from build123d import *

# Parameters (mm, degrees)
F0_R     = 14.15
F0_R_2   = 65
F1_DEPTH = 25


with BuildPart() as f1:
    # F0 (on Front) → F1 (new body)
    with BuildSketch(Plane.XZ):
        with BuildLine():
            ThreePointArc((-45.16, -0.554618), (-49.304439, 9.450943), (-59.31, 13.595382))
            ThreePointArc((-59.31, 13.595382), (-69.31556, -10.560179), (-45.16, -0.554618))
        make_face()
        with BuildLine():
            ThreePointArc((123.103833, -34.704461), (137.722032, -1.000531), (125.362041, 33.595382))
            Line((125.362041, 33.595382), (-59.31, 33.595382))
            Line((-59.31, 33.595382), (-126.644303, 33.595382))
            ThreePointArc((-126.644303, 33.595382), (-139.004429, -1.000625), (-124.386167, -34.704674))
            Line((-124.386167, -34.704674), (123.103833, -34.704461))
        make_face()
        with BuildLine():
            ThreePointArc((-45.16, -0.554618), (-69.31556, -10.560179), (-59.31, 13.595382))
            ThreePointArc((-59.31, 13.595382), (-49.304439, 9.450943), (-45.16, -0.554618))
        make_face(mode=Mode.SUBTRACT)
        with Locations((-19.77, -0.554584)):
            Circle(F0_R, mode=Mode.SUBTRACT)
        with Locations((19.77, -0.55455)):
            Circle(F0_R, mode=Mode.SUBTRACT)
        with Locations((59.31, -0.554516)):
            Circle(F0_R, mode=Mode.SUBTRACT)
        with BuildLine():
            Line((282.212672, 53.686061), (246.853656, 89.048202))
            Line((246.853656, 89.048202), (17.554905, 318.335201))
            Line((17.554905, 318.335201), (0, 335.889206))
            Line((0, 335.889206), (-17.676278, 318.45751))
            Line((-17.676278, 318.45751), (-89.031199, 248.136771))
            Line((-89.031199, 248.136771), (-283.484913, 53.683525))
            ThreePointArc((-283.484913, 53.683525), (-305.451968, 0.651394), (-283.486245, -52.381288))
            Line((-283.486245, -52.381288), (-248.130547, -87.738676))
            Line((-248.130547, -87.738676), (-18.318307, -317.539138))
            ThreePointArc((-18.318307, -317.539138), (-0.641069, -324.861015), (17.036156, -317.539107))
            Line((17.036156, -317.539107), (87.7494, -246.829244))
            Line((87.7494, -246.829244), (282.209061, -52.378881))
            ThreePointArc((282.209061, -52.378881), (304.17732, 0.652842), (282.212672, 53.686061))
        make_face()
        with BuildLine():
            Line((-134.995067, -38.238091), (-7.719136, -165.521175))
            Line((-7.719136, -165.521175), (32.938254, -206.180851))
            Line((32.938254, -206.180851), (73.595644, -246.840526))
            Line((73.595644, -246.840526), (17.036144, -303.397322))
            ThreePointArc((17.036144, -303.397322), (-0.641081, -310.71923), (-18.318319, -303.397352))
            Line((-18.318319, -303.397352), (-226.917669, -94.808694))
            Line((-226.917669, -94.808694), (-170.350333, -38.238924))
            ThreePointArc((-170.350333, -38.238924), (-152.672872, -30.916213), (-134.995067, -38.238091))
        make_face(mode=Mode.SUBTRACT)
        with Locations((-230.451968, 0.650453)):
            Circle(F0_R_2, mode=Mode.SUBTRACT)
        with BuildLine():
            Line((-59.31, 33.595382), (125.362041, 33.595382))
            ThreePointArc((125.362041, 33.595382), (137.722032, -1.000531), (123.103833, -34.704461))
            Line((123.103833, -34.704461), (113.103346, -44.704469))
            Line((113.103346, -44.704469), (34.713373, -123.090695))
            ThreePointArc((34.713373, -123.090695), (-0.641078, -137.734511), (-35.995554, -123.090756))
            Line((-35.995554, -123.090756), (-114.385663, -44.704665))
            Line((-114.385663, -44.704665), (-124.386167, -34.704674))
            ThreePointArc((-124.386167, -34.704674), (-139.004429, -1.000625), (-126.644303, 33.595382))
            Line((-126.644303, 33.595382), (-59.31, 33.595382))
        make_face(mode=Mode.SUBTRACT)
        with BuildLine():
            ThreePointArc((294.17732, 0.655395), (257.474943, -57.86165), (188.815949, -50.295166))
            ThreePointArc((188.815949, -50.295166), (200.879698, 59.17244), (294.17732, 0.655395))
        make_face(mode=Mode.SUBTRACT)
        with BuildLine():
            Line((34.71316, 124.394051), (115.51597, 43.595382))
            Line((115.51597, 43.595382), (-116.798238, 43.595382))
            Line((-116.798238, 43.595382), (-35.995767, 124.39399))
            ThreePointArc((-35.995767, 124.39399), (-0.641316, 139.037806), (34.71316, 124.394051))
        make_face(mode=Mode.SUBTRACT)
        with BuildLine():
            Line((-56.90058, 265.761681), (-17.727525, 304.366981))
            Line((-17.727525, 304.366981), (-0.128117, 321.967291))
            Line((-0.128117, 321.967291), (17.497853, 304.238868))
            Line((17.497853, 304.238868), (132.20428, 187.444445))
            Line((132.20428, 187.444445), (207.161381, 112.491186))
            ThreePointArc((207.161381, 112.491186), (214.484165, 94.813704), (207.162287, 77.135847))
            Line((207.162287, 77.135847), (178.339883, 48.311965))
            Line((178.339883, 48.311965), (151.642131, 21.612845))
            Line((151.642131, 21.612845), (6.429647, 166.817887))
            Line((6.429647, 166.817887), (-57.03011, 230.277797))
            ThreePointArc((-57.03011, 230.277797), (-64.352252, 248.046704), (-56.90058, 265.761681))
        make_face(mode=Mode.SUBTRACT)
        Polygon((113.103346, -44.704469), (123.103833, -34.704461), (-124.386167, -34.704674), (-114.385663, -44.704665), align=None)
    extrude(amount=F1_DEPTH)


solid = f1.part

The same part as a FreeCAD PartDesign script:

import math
import FreeCAD as App
import Part
import Sketcher

doc = App.newDocument("Part")
body = doc.addObject("PartDesign::Body", "Body")

# Sketch on XZ plane
sketch1 = doc.addObject("Sketcher::SketchObject", "Sketch")
body.addObject(sketch1)
sketch1.AttachmentSupport = (doc.XZ_Plane, [""])
sketch1.MapMode = "FlatFace"
sketch1.addGeometry([
    Part.LineSegment(App.Vector(282.212672, 53.686061, 0), App.Vector(246.853656, 89.048202, 0)),  # 0
    Part.LineSegment(App.Vector(246.853656, 89.048202, 0), App.Vector(17.554905, 318.335201, 0)),  # 1
    Part.LineSegment(App.Vector(17.554905, 318.335201, 0), App.Vector(0, 335.889206, 0)),  # 2
    Part.LineSegment(App.Vector(0, 335.889206, 0), App.Vector(-17.676278, 318.45751, 0)),  # 3
    Part.LineSegment(App.Vector(-17.676278, 318.45751, 0), App.Vector(-89.031199, 248.136771, 0)),  # 4
    Part.LineSegment(App.Vector(-89.031199, 248.136771, 0), App.Vector(-283.484913, 53.683525, 0)),  # 5
    Part.ArcOfCircle(Part.Circle(App.Vector(-230.451967, 0.650452, 0), App.Vector(0, 0, 1), 75.000001), math.radians(134.999932), math.radians(224.998629)),  # 6
    Part.LineSegment(App.Vector(-283.486245, -52.381288, 0), App.Vector(-248.130547, -87.738676, 0)),  # 7
    Part.LineSegment(App.Vector(-248.130547, -87.738676, 0), App.Vector(-18.318307, -317.539138, 0)),  # 8
    Part.ArcOfCircle(Part.Circle(App.Vector(-0.641091, -299.861015, 0), App.Vector(0, 0, 1), 25), math.radians(-134.99853), math.radians(-45.001369)),  # 9
    Part.LineSegment(App.Vector(17.036156, -317.539107, 0), App.Vector(87.7494, -246.829244, 0)),  # 10
    Part.LineSegment(App.Vector(87.7494, -246.829244, 0), App.Vector(282.209061, -52.378881, 0)),  # 11
    Part.ArcOfCircle(Part.Circle(App.Vector(229.177319, 0.655396, 0), App.Vector(0, 0, 1), 75.000001), math.radians(-45.001369), math.radians(44.997468)),  # 12
    Part.ArcOfCircle(Part.Circle(App.Vector(-152.672283, -55.916212, 0), App.Vector(0, 0, 1), 24.999999), math.radians(45.001465), math.radians(135.001235)),  # 13
    Part.LineSegment(App.Vector(-134.995067, -38.238091, 0), App.Vector(-7.719136, -165.521175, 0)),  # 14
    Part.LineSegment(App.Vector(-7.719136, -165.521175, 0), App.Vector(32.938254, -206.180851, 0)),  # 15
    Part.LineSegment(App.Vector(32.938254, -206.180851, 0), App.Vector(73.595644, -246.840526, 0)),  # 16
    Part.LineSegment(App.Vector(73.595644, -246.840526, 0), App.Vector(17.036144, -303.397322, 0)),  # 17
    Part.ArcOfCircle(Part.Circle(App.Vector(-0.641103, -285.719231, 0), App.Vector(0, 0, 1), 24.999999), math.radians(-134.998535), math.radians(-45.001368)),  # 18
    Part.LineSegment(App.Vector(-18.318319, -303.397352, 0), App.Vector(-226.917669, -94.808694, 0)),  # 19
    Part.LineSegment(App.Vector(-226.917669, -94.808694, 0), App.Vector(-170.350333, -38.238924, 0)),  # 20
    Part.Circle(App.Vector(-230.451968, 0.650453, 0), App.Vector(0, 0, 1), 65),  # 21
    Part.LineSegment(App.Vector(-126.644303, 33.595382, 0), App.Vector(125.362041, 33.595382, 0)),  # 22
    Part.ArcOfCircle(Part.Circle(App.Vector(87.749338, 0.651723, 0), App.Vector(0, 0, 1), 50.000001), math.radians(-45.001369), math.radians(41.213991)),  # 23
    Part.LineSegment(App.Vector(123.103833, -34.704461, 0), App.Vector(-124.386167, -34.704674, 0)),  # 24
    Part.ArcOfCircle(Part.Circle(App.Vector(-89.031733, 0.651571, 0), App.Vector(0, 0, 1), 50.000001), math.radians(138.785778), math.radians(225.001468)),  # 25
    Part.LineSegment(App.Vector(-35.995554, -123.090756, 0), App.Vector(-114.385663, -44.704665, 0)),  # 26
    Part.LineSegment(App.Vector(-114.385663, -44.704665, 0), App.Vector(113.103346, -44.704469, 0)),  # 27
    Part.LineSegment(App.Vector(113.103346, -44.704469, 0), App.Vector(34.713373, -123.090695, 0)),  # 28
    Part.ArcOfCircle(Part.Circle(App.Vector(-0.641121, -87.734511, 0), App.Vector(0, 0, 1), 50), math.radians(-134.998532), math.radians(-45.001369)),  # 29
    Part.ArcOfCircle(Part.Circle(App.Vector(229.17732, 0.655395, 0), App.Vector(0, 0, 1), 65), math.radians(0), math.radians(231.614884)),  # 30
    Part.ArcOfCircle(Part.Circle(App.Vector(229.177321, 0.655394, 0), App.Vector(0, 0, 1), 64.999999), math.radians(-128.385117), math.radians(0)),  # 31
    Part.ArcOfCircle(Part.Circle(App.Vector(-0.641273, 89.037806, 0), App.Vector(0, 0, 1), 50), math.radians(45.001468), math.radians(134.998631)),  # 32
    Part.LineSegment(App.Vector(34.71316, 124.394051, 0), App.Vector(115.51597, 43.595382, 0)),  # 33
    Part.LineSegment(App.Vector(115.51597, 43.595382, 0), App.Vector(-116.798238, 43.595382, 0)),  # 34
    Part.LineSegment(App.Vector(-116.798238, 43.595382, 0), App.Vector(-35.995767, 124.39399, 0)),  # 35
    Part.ArcOfCircle(Part.Circle(App.Vector(-39.352418, 247.955445, 0), App.Vector(0, 0, 1), 25.000001), math.radians(134.58177), math.radians(224.999928)),  # 36
    Part.LineSegment(App.Vector(-56.90058, 265.761681, 0), App.Vector(-17.727525, 304.366981, 0)),  # 37
    Part.LineSegment(App.Vector(-17.727525, 304.366981, 0), App.Vector(-0.128117, 321.967291, 0)),  # 38
    Part.LineSegment(App.Vector(-0.128117, 321.967291, 0), App.Vector(17.497853, 304.238868, 0)),  # 39
    Part.LineSegment(App.Vector(17.497853, 304.238868, 0), App.Vector(132.20428, 187.444445, 0)),  # 40
    Part.LineSegment(App.Vector(132.20428, 187.444445, 0), App.Vector(207.161381, 112.491186, 0)),  # 41
    Part.ArcOfCircle(Part.Circle(App.Vector(189.484166, 94.813063, 0), App.Vector(0, 0, 1), 24.999999), math.radians(-44.998535), math.radians(45.001471)),  # 42
    Part.LineSegment(App.Vector(207.162287, 77.135847, 0), App.Vector(178.339883, 48.311965, 0)),  # 43
    Part.LineSegment(App.Vector(178.339883, 48.311965, 0), App.Vector(151.642131, 21.612845, 0)),  # 44
    Part.LineSegment(App.Vector(151.642131, 21.612845, 0), App.Vector(6.429647, 166.817887, 0)),  # 45
    Part.LineSegment(App.Vector(6.429647, 166.817887, 0), App.Vector(-57.03011, 230.277797, 0)),  # 46
], False)
sketch1.addConstraint([
    Sketcher.Constraint("Coincident", 0, 2, 1, 1),
    Sketcher.Constraint("Coincident", 1, 2, 2, 1),
    Sketcher.Constraint("Coincident", 2, 2, 3, 1),
    Sketcher.Constraint("Coincident", 3, 2, 4, 1),
    Sketcher.Constraint("Coincident", 4, 2, 5, 1),
    Sketcher.Constraint("Coincident", 5, 2, 6, 1),
    Sketcher.Constraint("Coincident", 6, 2, 7, 1),
    Sketcher.Constraint("Coincident", 7, 2, 8, 1),
    Sketcher.Constraint("Coincident", 8, 2, 9, 1),
    Sketcher.Constraint("Coincident", 9, 2, 10, 1),
    Sketcher.Constraint("Coincident", 10, 2, 11, 1),
    Sketcher.Constraint("Coincident", 11, 2, 12, 1),
    Sketcher.Constraint("Coincident", 12, 2, 0, 1),
    Sketcher.Constraint("Coincident", 13, 1, 14, 1),
    Sketcher.Constraint("Coincident", 14, 2, 15, 1),
    Sketcher.Constraint("Coincident", 15, 2, 16, 1),
    Sketcher.Constraint("Coincident", 16, 2, 17, 1),
    Sketcher.Constraint("Coincident", 17, 2, 18, 2),
    Sketcher.Constraint("Coincident", 18, 1, 19, 1),
    Sketcher.Constraint("Coincident", 19, 2, 20, 1),
    Sketcher.Constraint("Coincident", 20, 2, 13, 2),
    Sketcher.Constraint("Coincident", 22, 2, 23, 2),
    Sketcher.Constraint("Coincident", 23, 1, 24, 1),
    Sketcher.Constraint("Coincident", 24, 2, 25, 2),
    Sketcher.Constraint("Coincident", 25, 1, 22, 1),
    Sketcher.Constraint("Coincident", 26, 2, 27, 1),
    Sketcher.Constraint("Coincident", 27, 2, 28, 1),
    Sketcher.Constraint("Coincident", 28, 2, 29, 2),
    Sketcher.Constraint("Coincident", 29, 1, 26, 1),
    Sketcher.Constraint("Coincident", 30, 1, 31, 2),
    Sketcher.Constraint("Coincident", 31, 1, 30, 2),
    Sketcher.Constraint("Coincident", 32, 1, 33, 1),
    Sketcher.Constraint("Coincident", 33, 2, 34, 1),
    Sketcher.Constraint("Coincident", 34, 2, 35, 1),
    Sketcher.Constraint("Coincident", 35, 2, 32, 2),
    Sketcher.Constraint("Coincident", 36, 1, 37, 1),
    Sketcher.Constraint("Coincident", 37, 2, 38, 1),
    Sketcher.Constraint("Coincident", 38, 2, 39, 1),
    Sketcher.Constraint("Coincident", 39, 2, 40, 1),
    Sketcher.Constraint("Coincident", 40, 2, 41, 1),
    Sketcher.Constraint("Coincident", 41, 2, 42, 2),
    Sketcher.Constraint("Coincident", 42, 1, 43, 1),
    Sketcher.Constraint("Coincident", 43, 2, 44, 1),
    Sketcher.Constraint("Coincident", 44, 2, 45, 1),
    Sketcher.Constraint("Coincident", 45, 2, 46, 1),
    Sketcher.Constraint("Coincident", 46, 2, 36, 2),
    Sketcher.Constraint("Horizontal", 22),
    Sketcher.Constraint("Horizontal", 34),
    Sketcher.Constraint("Coincident", 21, 3, 6, 3),
    Sketcher.Constraint("Coincident", 30, 3, 12, 3),
    Sketcher.Constraint("PointOnObject", 2, 2, -2),
    Sketcher.Constraint("Diameter", 21, 130.0),
    Sketcher.Constraint("Radius", 6, 75.000001),
    Sketcher.Constraint("Radius", 9, 25.0),
    Sketcher.Constraint("Radius", 12, 75.000001),
    Sketcher.Constraint("Radius", 13, 24.999999),
    Sketcher.Constraint("Radius", 18, 24.999999),
    Sketcher.Constraint("Radius", 23, 50.000001),
    Sketcher.Constraint("Radius", 25, 50.000001),
    Sketcher.Constraint("Radius", 29, 50.0),
    Sketcher.Constraint("Radius", 30, 65.0),
    Sketcher.Constraint("Radius", 31, 64.999999),
    Sketcher.Constraint("Radius", 32, 50.0),
    Sketcher.Constraint("Radius", 36, 25.000001),
    Sketcher.Constraint("Radius", 42, 24.999999),
    Sketcher.Constraint("DistanceY", 22, 2, 33, 2, 10.0),
    Sketcher.Constraint("Distance", 24, 247.49),
    Sketcher.Constraint("DistanceY", 0, 2, 1, 2, 229.286999),
    Sketcher.Constraint("Distance", 17, 79.9853),
    Sketcher.Constraint("Distance", 33, 114.269502),
    Sketcher.Constraint("DistanceX", 34, 2, 34, 1, 232.314208),
    Sketcher.Constraint("DistanceY", -1, 1, 1, 2, 318.335201),
    Sketcher.Constraint("DistanceX", 4, 2, -1, 1, 89.031199),
    Sketcher.Constraint("DistanceX", -1, 1, 10, 2, 87.7494),
    Sketcher.Constraint("DistanceY", 29, 3, 13, 3, 31.8183),
    Sketcher.Constraint("DistanceY", 32, 3, 2, 2, 246.8514),
    Sketcher.Constraint("DistanceX", 6, 2, 7, 2, 35.355698),
    Sketcher.Constraint("DistanceY", 7, 2, 5, 2, 141.422201),
    Sketcher.Constraint("DistanceX", 6, 3, 13, 1, 95.4569),
    Sketcher.Constraint("DistanceX", 9, 2, 15, 2, 15.902098),
    Sketcher.Constraint("DistanceX", 17, 2, 16, 2, 56.5595),
    Sketcher.Constraint("DistanceX", 6, 3, 19, 2, 3.534298),
    Sketcher.Constraint("DistanceX", 13, 1, 24, 2, 10.6089),
    Sketcher.Constraint("DistanceY", 36, 1, 37, 2, 38.6053),
    Sketcher.Constraint("DistanceX", 40, 2, 41, 2, 74.957101),
    Sketcher.Constraint("DistanceY", 43, 2, 42, 3, 46.501098),
    Sketcher.Constraint("DistanceX", 23, 1, 44, 2, 28.538298),
    Sketcher.Constraint("Distance", 0, 50.00741),
    Sketcher.Constraint("Distance", 2, 24.825748),
    Sketcher.Constraint("Distance", 3, 24.825689),
    Sketcher.Constraint("Distance", 4, 100.182489),
    Sketcher.Constraint("Distance", 5, 274.998749),
    Sketcher.Constraint("Distance", 8, 324.995258),
    Sketcher.Constraint("Distance", 10, 100.001238),
    Sketcher.Constraint("Distance", 15, 57.499849),
    Sketcher.Constraint("Distance", 16, 57.499848),
    Sketcher.Constraint("Distance", 19, 294.99647),
    Sketcher.Constraint("Distance", 27, 227.489009),
    Sketcher.Constraint("Distance", 35, 114.269219),
    Sketcher.Constraint("Distance", 38, 24.889959),
    Sketcher.Constraint("Distance", 40, 163.702479),
    Sketcher.Constraint("Distance", 43, 40.76208),
    Sketcher.Constraint("Distance", 44, 37.75729),
    Sketcher.Constraint("DistanceX", 22, 1, 22, 2, 252.006344),
    Sketcher.Constraint("DistanceX", 9, 3, -1, 1, 0.641091),
    Sketcher.Constraint("DistanceX", -1, 1, 12, 3, 229.177319),
    Sketcher.Constraint("DistanceY", 13, 3, -1, 1, 55.916212),
    Sketcher.Constraint("DistanceY", 18, 3, -1, 1, 285.719231),
    Sketcher.Constraint("DistanceX", 21, 3, -1, 1, 230.451968),
    Sketcher.Constraint("DistanceX", -1, 1, 23, 3, 87.749338),
    Sketcher.Constraint("DistanceY", -1, 1, 25, 3, 0.651571),
    Sketcher.Constraint("DistanceX", 29, 3, -1, 1, 0.641121),
    Sketcher.Constraint("DistanceX", 3, 2, -1, 1, 17.676278),
    Sketcher.Constraint("DistanceY", -1, 1, 3, 2, 318.45751),
    Sketcher.Constraint("DistanceY", 6, 2, -1, 1, 52.381288),
    Sketcher.Constraint("DistanceY", 8, 2, -1, 1, 317.539138),
    Sketcher.Constraint("DistanceX", -1, 1, 11, 2, 282.209061),
    Sketcher.Constraint("DistanceY", 11, 2, -1, 1, 52.378881),
    Sketcher.Constraint("DistanceX", -1, 1, 12, 2, 282.212672),
    Sketcher.Constraint("DistanceY", 13, 1, -1, 1, 38.238091),
    Sketcher.Constraint("DistanceY", 15, 2, -1, 1, 206.180851),
    Sketcher.Constraint("DistanceY", 17, 2, -1, 1, 303.397322),
    Sketcher.Constraint("DistanceX", 18, 1, -1, 1, 18.318319),
    Sketcher.Constraint("DistanceX", -1, 1, 22, 2, 125.362041),
    Sketcher.Constraint("DistanceY", 23, 1, -1, 1, 34.704461),
    Sketcher.Constraint("DistanceY", 27, 2, -1, 1, 44.704469),
    Sketcher.Constraint("DistanceX", -1, 1, 31, 1, 188.815949),
    Sketcher.Constraint("DistanceX", -1, 1, 32, 1, 34.71316),
    Sketcher.Constraint("DistanceY", -1, 1, 32, 1, 124.394051),
    Sketcher.Constraint("DistanceX", 36, 1, -1, 1, 56.90058),
    Sketcher.Constraint("DistanceY", -1, 1, 36, 1, 265.761681),
    Sketcher.Constraint("DistanceY", -1, 1, 38, 2, 321.967291),
    Sketcher.Constraint("DistanceY", -1, 1, 39, 2, 304.238868),
    Sketcher.Constraint("DistanceX", -1, 1, 40, 2, 132.20428),
    Sketcher.Constraint("DistanceX", 46, 2, -1, 1, 57.03011),
    Sketcher.Constraint("DistanceY", 9, 3, 12, 3, 300.516411),
    Sketcher.Constraint("DistanceX", 13, 3, 18, 3, 152.031181),
    Sketcher.Constraint("DistanceY", 32, 3, 36, 3, 158.917639),
    Sketcher.Constraint("DistanceY", 30, 3, 42, 3, 94.157668),
    Sketcher.Constraint("DistanceX", 32, 3, 42, 3, 190.125439),
    Sketcher.Constraint("DistanceY", 10, 2, 14, 2, 81.308069),
    Sketcher.Constraint("DistanceX", 20, 2, 13, 3, 17.67805),
    Sketcher.Constraint("DistanceY", 26, 2, 24, 2, 9.999991),
    Sketcher.Constraint("DistanceX", 13, 3, 26, 2, 38.28662),
    Sketcher.Constraint("DistanceX", 14, 2, 28, 2, 42.432509),
    Sketcher.Constraint("DistanceX", 29, 1, 14, 2, 28.276418),
    Sketcher.Constraint("DistanceX", 37, 2, 1, 2, 35.28243),
    Sketcher.Constraint("DistanceX", 38, 2, 39, 2, 17.62597),
    Sketcher.Constraint("DistanceX", 42, 3, 42, 1, 17.678121),
    Sketcher.Constraint("DistanceX", 32, 3, 45, 2, 7.07092),
    Sketcher.Constraint("DistanceY", 32, 3, 45, 2, 77.780081),
    Sketcher.Constraint("DistanceY", -1, 1, 30, 1, 0.655395),
])
pad1 = doc.addObject("PartDesign::Pad", "Pad")
body.addObject(pad1)
pad1.Profile = sketch1
pad1.Length = 25

doc.recompute()
